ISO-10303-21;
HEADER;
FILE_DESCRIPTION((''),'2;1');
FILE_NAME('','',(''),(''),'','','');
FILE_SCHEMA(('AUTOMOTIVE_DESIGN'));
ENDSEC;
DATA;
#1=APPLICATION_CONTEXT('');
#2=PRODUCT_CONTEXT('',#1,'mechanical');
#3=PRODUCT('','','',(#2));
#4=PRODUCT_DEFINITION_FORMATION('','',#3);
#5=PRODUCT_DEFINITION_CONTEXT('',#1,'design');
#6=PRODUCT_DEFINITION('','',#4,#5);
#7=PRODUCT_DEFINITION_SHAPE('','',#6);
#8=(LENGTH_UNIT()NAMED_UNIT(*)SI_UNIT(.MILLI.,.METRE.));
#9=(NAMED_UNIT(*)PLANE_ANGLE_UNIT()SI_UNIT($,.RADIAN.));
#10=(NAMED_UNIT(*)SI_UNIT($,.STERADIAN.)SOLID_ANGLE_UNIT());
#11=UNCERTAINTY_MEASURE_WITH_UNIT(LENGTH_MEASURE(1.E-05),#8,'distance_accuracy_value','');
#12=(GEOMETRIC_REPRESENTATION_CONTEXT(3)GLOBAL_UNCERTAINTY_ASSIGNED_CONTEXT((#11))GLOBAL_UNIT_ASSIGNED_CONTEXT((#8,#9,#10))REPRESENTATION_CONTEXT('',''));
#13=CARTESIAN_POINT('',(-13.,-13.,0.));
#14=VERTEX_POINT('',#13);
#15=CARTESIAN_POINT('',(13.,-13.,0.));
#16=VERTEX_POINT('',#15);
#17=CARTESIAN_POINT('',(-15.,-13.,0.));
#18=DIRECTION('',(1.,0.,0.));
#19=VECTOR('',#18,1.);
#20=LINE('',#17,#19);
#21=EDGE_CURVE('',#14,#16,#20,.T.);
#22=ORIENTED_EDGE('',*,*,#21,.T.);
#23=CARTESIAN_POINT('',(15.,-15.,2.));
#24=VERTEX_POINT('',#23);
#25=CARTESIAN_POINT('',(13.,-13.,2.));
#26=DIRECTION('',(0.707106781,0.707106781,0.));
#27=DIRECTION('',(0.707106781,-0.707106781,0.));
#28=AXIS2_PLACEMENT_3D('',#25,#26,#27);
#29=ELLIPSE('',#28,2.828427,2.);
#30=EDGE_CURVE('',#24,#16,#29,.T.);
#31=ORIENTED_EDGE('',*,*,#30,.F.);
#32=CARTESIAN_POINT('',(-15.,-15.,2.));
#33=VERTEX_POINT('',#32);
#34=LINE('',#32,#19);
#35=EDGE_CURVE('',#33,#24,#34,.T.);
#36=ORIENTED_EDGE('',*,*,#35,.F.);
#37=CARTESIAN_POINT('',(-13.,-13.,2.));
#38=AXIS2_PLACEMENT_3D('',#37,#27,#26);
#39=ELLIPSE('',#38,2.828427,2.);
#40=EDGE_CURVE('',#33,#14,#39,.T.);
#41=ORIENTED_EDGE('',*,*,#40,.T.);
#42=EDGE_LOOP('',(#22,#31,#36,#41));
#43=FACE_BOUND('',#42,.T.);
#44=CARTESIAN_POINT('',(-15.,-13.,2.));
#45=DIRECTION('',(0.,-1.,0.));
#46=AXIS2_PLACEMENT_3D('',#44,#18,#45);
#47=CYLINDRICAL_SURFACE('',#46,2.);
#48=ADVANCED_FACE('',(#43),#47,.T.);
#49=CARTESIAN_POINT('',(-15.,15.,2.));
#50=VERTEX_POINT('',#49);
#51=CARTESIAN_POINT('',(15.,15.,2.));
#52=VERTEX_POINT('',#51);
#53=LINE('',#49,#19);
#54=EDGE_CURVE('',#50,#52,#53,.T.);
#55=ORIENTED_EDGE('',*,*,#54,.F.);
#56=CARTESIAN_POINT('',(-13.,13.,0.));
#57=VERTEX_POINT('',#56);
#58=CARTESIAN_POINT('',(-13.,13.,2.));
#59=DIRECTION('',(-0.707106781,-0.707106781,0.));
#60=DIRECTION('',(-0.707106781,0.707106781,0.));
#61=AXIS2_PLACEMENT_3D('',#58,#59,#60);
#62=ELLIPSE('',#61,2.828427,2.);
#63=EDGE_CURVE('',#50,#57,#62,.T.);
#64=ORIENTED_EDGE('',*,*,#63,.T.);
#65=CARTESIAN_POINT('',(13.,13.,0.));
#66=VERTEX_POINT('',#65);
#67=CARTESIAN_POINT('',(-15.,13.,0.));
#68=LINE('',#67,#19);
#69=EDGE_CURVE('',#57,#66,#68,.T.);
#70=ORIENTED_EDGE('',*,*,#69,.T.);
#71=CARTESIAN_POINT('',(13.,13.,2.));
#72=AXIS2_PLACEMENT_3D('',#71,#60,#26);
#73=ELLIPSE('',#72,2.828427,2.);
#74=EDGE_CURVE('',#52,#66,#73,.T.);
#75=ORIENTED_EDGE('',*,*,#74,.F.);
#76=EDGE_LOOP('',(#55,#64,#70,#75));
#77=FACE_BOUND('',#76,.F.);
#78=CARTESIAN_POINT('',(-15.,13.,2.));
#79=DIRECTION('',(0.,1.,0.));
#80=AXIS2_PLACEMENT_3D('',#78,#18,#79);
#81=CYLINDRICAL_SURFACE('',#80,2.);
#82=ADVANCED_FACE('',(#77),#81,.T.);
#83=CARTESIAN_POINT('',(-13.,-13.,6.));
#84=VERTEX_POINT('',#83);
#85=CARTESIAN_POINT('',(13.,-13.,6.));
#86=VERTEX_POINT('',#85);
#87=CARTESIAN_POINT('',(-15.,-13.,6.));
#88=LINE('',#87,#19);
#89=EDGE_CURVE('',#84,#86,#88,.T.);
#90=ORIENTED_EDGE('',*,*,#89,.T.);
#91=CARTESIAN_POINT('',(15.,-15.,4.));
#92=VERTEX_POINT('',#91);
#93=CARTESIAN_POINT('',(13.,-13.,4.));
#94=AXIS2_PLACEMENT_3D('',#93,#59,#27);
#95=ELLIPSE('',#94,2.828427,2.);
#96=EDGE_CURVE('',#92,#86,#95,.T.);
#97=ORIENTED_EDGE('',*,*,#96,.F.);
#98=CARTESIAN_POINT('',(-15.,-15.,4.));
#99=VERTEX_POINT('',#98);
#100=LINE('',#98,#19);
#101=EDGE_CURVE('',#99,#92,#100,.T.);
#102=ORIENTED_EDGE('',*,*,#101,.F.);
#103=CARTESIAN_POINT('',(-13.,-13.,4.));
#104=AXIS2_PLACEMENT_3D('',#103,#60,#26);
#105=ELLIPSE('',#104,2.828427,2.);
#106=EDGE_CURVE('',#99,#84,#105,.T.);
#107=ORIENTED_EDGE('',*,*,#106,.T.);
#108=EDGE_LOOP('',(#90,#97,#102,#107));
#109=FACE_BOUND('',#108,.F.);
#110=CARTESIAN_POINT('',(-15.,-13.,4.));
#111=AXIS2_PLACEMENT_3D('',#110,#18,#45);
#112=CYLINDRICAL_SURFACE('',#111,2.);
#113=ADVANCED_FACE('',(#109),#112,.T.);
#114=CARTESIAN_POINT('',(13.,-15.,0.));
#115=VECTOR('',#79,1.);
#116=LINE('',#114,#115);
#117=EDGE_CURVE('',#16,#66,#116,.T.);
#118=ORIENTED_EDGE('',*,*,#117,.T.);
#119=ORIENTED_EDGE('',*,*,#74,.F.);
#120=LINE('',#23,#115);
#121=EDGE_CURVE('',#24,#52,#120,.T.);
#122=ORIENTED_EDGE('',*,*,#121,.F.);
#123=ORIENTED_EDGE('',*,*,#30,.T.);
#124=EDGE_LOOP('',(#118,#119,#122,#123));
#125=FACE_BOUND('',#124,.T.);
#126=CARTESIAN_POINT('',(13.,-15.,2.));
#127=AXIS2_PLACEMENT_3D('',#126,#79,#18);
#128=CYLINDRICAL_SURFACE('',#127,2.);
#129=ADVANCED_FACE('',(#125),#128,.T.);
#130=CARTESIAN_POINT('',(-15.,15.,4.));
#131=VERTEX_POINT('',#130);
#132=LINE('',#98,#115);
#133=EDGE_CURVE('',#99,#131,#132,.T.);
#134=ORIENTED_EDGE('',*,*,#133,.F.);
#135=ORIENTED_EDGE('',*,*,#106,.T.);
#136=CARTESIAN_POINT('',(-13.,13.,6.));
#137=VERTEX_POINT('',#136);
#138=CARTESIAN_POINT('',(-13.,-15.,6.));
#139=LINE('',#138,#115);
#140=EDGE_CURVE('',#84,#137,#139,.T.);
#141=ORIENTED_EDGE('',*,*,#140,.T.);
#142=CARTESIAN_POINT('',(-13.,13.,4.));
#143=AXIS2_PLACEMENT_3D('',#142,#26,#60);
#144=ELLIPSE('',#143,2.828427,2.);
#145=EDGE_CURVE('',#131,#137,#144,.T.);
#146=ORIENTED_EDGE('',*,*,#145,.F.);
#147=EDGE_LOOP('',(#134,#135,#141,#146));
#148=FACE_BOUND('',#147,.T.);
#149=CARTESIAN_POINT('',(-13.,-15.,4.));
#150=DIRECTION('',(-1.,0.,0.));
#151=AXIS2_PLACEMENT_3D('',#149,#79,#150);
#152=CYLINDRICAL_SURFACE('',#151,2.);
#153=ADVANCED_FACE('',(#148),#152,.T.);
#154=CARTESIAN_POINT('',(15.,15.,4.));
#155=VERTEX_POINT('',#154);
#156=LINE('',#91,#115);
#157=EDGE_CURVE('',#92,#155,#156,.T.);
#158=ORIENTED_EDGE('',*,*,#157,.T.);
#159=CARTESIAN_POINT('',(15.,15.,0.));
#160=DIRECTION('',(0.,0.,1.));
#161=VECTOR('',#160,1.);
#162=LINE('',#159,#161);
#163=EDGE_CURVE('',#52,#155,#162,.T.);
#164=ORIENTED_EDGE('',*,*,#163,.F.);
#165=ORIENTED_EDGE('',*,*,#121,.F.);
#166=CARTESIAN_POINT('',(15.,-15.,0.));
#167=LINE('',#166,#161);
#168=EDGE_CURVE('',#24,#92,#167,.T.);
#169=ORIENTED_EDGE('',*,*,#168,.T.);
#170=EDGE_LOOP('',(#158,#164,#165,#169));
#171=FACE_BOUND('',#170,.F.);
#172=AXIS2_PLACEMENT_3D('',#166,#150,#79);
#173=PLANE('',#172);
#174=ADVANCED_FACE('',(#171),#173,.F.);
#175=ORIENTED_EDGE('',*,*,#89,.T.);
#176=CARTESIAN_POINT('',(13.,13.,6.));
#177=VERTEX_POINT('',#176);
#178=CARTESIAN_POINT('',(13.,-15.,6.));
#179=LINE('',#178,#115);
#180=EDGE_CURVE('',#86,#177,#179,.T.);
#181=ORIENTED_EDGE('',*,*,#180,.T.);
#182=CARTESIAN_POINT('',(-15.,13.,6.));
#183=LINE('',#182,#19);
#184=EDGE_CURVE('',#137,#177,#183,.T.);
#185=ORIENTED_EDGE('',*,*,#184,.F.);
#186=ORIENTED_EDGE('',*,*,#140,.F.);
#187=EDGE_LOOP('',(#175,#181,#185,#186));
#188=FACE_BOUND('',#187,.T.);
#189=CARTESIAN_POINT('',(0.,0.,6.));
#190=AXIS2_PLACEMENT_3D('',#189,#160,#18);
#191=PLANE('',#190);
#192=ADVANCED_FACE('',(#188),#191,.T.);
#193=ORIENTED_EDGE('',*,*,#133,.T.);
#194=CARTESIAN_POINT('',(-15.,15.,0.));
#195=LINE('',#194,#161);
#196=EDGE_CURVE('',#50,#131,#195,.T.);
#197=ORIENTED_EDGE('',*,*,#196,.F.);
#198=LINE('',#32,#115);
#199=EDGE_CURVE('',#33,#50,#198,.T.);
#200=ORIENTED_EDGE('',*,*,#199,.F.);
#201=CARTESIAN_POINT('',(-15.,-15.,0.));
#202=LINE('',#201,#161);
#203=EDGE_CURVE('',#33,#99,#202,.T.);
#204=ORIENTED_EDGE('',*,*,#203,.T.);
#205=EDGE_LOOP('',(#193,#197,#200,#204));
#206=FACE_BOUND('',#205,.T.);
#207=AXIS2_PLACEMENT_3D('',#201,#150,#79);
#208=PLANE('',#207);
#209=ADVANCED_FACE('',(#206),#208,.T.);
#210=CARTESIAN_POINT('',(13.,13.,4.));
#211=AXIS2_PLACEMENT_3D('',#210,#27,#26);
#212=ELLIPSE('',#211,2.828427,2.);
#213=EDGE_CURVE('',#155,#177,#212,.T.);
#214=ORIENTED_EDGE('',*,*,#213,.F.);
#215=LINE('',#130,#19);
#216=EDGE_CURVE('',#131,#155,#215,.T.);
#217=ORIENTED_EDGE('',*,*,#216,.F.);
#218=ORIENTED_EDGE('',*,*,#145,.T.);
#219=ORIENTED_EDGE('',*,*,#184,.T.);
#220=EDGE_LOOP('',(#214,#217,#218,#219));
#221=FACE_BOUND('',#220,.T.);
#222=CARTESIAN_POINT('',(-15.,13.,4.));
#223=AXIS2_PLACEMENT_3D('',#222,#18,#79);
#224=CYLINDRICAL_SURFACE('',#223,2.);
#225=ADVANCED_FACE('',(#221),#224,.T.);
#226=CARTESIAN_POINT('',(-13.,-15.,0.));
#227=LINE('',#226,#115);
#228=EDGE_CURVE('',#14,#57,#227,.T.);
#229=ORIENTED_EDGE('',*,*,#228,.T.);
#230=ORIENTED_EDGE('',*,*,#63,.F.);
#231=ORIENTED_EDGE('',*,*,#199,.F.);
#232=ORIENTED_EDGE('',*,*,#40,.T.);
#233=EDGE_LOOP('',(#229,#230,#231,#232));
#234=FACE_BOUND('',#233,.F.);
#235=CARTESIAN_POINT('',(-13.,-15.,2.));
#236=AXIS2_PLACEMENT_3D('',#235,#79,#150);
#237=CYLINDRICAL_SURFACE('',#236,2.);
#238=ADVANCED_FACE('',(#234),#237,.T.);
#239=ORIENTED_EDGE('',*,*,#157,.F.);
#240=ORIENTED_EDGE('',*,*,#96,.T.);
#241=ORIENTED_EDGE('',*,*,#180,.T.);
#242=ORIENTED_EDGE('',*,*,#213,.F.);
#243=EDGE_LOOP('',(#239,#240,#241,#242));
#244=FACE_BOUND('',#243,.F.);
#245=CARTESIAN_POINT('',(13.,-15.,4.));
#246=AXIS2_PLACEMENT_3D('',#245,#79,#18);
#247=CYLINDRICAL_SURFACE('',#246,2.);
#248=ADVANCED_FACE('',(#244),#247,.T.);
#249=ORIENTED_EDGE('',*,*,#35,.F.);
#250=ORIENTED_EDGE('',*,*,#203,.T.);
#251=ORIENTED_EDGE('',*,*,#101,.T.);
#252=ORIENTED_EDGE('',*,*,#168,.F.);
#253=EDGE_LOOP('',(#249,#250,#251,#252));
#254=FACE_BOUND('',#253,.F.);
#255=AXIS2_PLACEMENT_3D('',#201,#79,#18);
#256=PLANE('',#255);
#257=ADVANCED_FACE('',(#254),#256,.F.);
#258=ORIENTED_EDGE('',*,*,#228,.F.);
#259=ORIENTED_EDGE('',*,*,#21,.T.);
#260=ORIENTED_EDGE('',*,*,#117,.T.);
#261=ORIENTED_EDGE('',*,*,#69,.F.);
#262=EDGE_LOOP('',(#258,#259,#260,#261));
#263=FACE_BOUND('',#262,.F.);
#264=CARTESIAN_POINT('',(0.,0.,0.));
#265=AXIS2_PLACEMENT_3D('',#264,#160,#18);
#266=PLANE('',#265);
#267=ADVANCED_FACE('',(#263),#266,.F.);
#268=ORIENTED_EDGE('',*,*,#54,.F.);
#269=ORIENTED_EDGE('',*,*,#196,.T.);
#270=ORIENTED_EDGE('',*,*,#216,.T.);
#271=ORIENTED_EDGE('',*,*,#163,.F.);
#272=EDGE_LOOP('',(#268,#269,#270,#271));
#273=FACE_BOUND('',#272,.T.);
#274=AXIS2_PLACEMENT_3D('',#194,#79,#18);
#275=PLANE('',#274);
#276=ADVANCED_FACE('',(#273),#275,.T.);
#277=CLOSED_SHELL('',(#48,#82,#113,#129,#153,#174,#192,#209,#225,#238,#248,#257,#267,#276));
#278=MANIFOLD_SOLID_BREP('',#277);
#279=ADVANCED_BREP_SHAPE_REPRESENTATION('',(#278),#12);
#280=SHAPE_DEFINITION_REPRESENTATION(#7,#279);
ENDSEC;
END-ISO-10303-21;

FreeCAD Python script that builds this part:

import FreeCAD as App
import Part
import Sketcher
from FreeCAD import Vector


def edges_at(feature, points):
    """Names of the edges that pass closest to the given points."""
    edges = feature.Shape.Edges
    near = lambda p: min(range(len(edges)), key=lambda i: edges[i].distToShape(Part.Vertex(*p))[0])
    return sorted({f"Edge{near(p) + 1}" for p in points})

doc = App.newDocument("Part")
body = doc.addObject("PartDesign::Body", "Body")

# Sketch on XY plane
sketch1 = doc.addObject("Sketcher::SketchObject", "Sketch")
body.addObject(sketch1)
sketch1.AttachmentSupport = (doc.XY_Plane, [""])
sketch1.MapMode = "FlatFace"
sketch1.addGeometry([
    Part.LineSegment(Vector(-15, 15, 0), Vector(-15, -15, 0)),
    Part.LineSegment(Vector(-15, -15, 0), Vector(15, -15, 0)),
    Part.LineSegment(Vector(15, -15, 0), Vector(15, 15, 0)),
    Part.LineSegment(Vector(15, 15, 0), Vector(-15, 15, 0)),
], False)
sketch1.addConstraint([
    Sketcher.Constraint("Coincident", 0, 2, 1, 1),
    Sketcher.Constraint("Coincident", 1, 2, 2, 1),
    Sketcher.Constraint("Coincident", 2, 2, 3, 1),
    Sketcher.Constraint("Coincident", 3, 2, 0, 1),
    Sketcher.Constraint("Vertical", 0),
    Sketcher.Constraint("Horizontal", 1),
    Sketcher.Constraint("Vertical", 2),
    Sketcher.Constraint("Horizontal", 3),
    Sketcher.Constraint("Symmetric", 0, 2, 2, 2, -1, 1),
    Sketcher.Constraint("Equal", 3, 0),
    Sketcher.Constraint("DistanceX", 1, 1, 1, 2, 30.0),
])
pad1 = doc.addObject("PartDesign::Pad", "Pad")
body.addObject(pad1)
pad1.Profile = sketch1
pad1.Length = 6
doc.recompute()

fillet = doc.addObject("PartDesign::Fillet", "Fillet")
body.addObject(fillet)
fillet.Base = (pad1, edges_at(pad1, [
    (0, -15, 6),
    (-15, 0, 6),
    (0, 15, 6),
    (15, 0, 6),
    (-15, 0, 0),
    (0, -15, 0),
    (0, 15, 0),
    (15, 0, 0),
]))
fillet.Radius = 2

doc.recompute()
